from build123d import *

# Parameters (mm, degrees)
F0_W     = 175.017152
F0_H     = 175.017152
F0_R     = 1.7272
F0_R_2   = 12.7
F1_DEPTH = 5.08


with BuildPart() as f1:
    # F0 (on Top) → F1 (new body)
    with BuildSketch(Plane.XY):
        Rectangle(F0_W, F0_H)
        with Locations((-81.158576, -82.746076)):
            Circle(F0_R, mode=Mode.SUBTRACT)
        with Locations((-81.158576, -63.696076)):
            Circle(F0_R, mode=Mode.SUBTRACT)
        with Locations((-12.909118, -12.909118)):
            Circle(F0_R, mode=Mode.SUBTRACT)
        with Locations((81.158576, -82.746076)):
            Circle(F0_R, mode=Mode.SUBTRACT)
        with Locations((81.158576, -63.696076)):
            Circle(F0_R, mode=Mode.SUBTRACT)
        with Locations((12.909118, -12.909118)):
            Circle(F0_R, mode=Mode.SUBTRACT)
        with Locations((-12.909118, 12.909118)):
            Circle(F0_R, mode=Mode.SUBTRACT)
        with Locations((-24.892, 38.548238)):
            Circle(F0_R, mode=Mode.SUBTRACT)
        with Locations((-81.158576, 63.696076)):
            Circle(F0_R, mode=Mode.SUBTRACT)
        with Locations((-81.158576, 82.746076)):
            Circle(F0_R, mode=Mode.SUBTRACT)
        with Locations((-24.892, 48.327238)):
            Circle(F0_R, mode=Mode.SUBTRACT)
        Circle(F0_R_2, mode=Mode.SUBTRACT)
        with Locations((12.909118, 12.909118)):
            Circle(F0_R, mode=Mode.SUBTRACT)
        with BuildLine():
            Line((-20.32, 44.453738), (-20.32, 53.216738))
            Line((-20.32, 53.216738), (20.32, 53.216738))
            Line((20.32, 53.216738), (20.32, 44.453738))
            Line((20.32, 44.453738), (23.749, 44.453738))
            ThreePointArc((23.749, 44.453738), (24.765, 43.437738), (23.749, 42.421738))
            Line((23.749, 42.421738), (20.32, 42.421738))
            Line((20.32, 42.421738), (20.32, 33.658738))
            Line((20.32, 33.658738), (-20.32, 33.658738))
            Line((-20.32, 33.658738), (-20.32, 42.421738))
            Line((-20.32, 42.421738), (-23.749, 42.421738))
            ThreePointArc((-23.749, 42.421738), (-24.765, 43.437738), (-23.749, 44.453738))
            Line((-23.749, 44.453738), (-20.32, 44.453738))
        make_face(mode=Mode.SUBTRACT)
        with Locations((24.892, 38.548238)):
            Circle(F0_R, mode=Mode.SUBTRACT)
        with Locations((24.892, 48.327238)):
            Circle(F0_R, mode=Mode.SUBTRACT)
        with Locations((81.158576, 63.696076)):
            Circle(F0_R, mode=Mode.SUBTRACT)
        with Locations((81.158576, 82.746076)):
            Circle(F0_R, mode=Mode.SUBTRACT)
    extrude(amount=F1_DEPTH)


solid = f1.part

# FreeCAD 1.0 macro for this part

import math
import FreeCAD as App
import Part
import Sketcher
from FreeCAD import Vector
Q = App.Units.Quantity


def add_polygon(sketch, points):
    """Adds a closed chain of lines whose ends are joined by coincident constraints."""
    first, n = sketch.GeometryCount, len(points)
    for a, b in zip(points, points[1:] + points[:1]):
        sketch.addGeometry(Part.LineSegment(App.Vector(*a, 0), App.Vector(*b, 0)), False)
    for i in range(n):
        sketch.addConstraint(Sketcher.Constraint("Coincident", first + i, 2, first + (i + 1) % n, 1))

doc = App.newDocument("Part")
params = doc.addObject("Spreadsheet::Sheet", "Params")
for row, (alias, value) in enumerate([
    ("sketch1_diameter", "1 in"),
    ("sketch1_radius", "0.04 in"),
    ("sketch1_diameter2", "0.136 in"),
    ("sketch1_width", "1.6 in"),
    ("sketch1_width2", "0.135 in"),
    ("pad1_length", "0.2 in"),
], start=1):
    params.set(f"A{row}", alias)
    params.set(f"B{row}", "=" + value)
    params.setAlias(f"B{row}", alias)

body = doc.addObject("PartDesign::Body", "Body")

# Sketch on XY plane
sketch1 = body.newObject("Sketcher::SketchObject", "Sketch")
sketch1.AttachmentSupport = (doc.getObject("XY_Plane"), [""])
sketch1.MapMode = "FlatFace"
add_polygon(sketch1, [(-87.5, 87.5), (-87.5, -87.5), (87.5, -87.5), (87.5, 87.5)])  # lines 0-3
sketch1.addGeometry(Part.Circle(Vector(-81.2, -82.7, 0), Vector(0, 0, 1), 1.7), False)  # 4
sketch1.addGeometry(Part.Circle(Vector(-81.2, -63.7, 0), Vector(0, 0, 1), 1.7), False)  # 5
sketch1.addGeometry(Part.Circle(Vector(-12.9, -12.9, 0), Vector(0, 0, 1), 1.7), False)  # 6
sketch1.addGeometry(Part.Circle(Vector(81.2, -82.7, 0), Vector(0, 0, 1), 1.7), False)  # 7
sketch1.addGeometry(Part.Circle(Vector(81.2, -63.7, 0), Vector(0, 0, 1), 1.7), False)  # 8
sketch1.addGeometry(Part.Circle(Vector(12.9, -12.9, 0), Vector(0, 0, 1), 1.7), False)  # 9
sketch1.addGeometry(Part.Circle(Vector(0, 0, 0), Vector(0, 0, 1), 12.7), False)  # 10
sketch1.addGeometry(Part.Circle(Vector(-12.9, 12.9, 0), Vector(0, 0, 1), 1.7), False)  # 11
sketch1.addGeometry(Part.Circle(Vector(-24.9, 38.5, 0), Vector(0, 0, 1), 1.7), False)  # 12
sketch1.addGeometry(Part.Circle(Vector(-81.2, 63.7, 0), Vector(0, 0, 1), 1.7), False)  # 13
sketch1.addGeometry(Part.Circle(Vector(-81.2, 82.7, 0), Vector(0, 0, 1), 1.7), False)  # 14
sketch1.addGeometry(Part.Circle(Vector(-24.9, 48.3, 0), Vector(0, 0, 1), 1.7), False)  # 15
sketch1.addGeometry(Part.Circle(Vector(12.9, 12.9, 0), Vector(0, 0, 1), 1.7), False)  # 16
sketch1.addGeometry(Part.Circle(Vector(24.9, 38.5, 0), Vector(0, 0, 1), 1.7), False)  # 17
sketch1.addGeometry(Part.LineSegment(Vector(-23.7, 44.5, 0), Vector(-20.3, 44.5, 0)), False)  # 18
sketch1.addGeometry(Part.LineSegment(Vector(-20.3, 44.5, 0), Vector(-20.3, 53.2, 0)), False)  # 19
sketch1.addGeometry(Part.LineSegment(Vector(-20.3, 53.2, 0), Vector(20.3, 53.2, 0)), False)  # 20
sketch1.addGeometry(Part.LineSegment(Vector(20.3, 53.2, 0), Vector(20.3, 44.5, 0)), False)  # 21
sketch1.addGeometry(Part.LineSegment(Vector(20.3, 44.5, 0), Vector(23.7, 44.5, 0)), False)  # 22
sketch1.addGeometry(Part.ArcOfCircle(Part.Circle(Vector(23.7, 43.4, 0), Vector(0, 0, 1), 1), math.radians(-90), math.radians(90)), False)  # 23
sketch1.addGeometry(Part.LineSegment(Vector(23.7, 42.4, 0), Vector(20.3, 42.4, 0)), False)  # 24
sketch1.addGeometry(Part.LineSegment(Vector(20.3, 42.4, 0), Vector(20.3, 33.7, 0)), False)  # 25
sketch1.addGeometry(Part.LineSegment(Vector(20.3, 33.7, 0), Vector(-20.3, 33.7, 0)), False)  # 26
sketch1.addGeometry(Part.LineSegment(Vector(-20.3, 33.7, 0), Vector(-20.3, 42.4, 0)), False)  # 27
sketch1.addGeometry(Part.LineSegment(Vector(-20.3, 42.4, 0), Vector(-23.7, 42.4, 0)), False)  # 28
sketch1.addGeometry(Part.ArcOfCircle(Part.Circle(Vector(-23.7, 43.4, 0), Vector(0, 0, 1), 1), math.radians(90), math.radians(270)), False)  # 29
sketch1.addGeometry(Part.Circle(Vector(24.9, 48.3, 0), Vector(0, 0, 1), 1.7), False)  # 30
sketch1.addGeometry(Part.Circle(Vector(81.2, 63.7, 0), Vector(0, 0, 1), 1.7), False)  # 31
sketch1.addGeometry(Part.Circle(Vector(81.2, 82.7, 0), Vector(0, 0, 1), 1.7), False)  # 32
sketch1.addConstraint([
    Sketcher.Constraint("Coincident", 18, 2, 19, 1),
    Sketcher.Constraint("Coincident", 19, 2, 20, 1),
    Sketcher.Constraint("Coincident", 20, 2, 21, 1),
    Sketcher.Constraint("Coincident", 21, 2, 22, 1),
    Sketcher.Constraint("Tangent", 22, 2, 23, 2),
    Sketcher.Constraint("Tangent", 23, 1, 24, 1),
    Sketcher.Constraint("Coincident", 24, 2, 25, 1),
    Sketcher.Constraint("Coincident", 25, 2, 26, 1),
    Sketcher.Constraint("Coincident", 26, 2, 27, 1),
    Sketcher.Constraint("Coincident", 27, 2, 28, 1),
    Sketcher.Constraint("Tangent", 28, 2, 29, 2),
    Sketcher.Constraint("Tangent", 29, 1, 18, 1),
    Sketcher.Constraint("Vertical", 0),
    Sketcher.Constraint("Horizontal", 1),
    Sketcher.Constraint("Vertical", 2),
    Sketcher.Constraint("Horizontal", 3),
    Sketcher.Constraint("Horizontal", 18),
    Sketcher.Constraint("Vertical", 19),
    Sketcher.Constraint("Horizontal", 20),
    Sketcher.Constraint("Vertical", 21),
    Sketcher.Constraint("Horizontal", 22),
    Sketcher.Constraint("Horizontal", 24),
    Sketcher.Constraint("Vertical", 25),
    Sketcher.Constraint("Horizontal", 26),
    Sketcher.Constraint("Vertical", 27),
    Sketcher.Constraint("Horizontal", 28),
    Sketcher.Constraint("Coincident", 10, 3, -1, 1),
    Sketcher.Constraint("Equal", 4, 5),
    Sketcher.Constraint("Equal", 5, 6),
    Sketcher.Constraint("Equal", 6, 7),
    Sketcher.Constraint("Equal", 7, 8),
    Sketcher.Constraint("Equal", 8, 9),
    Sketcher.Constraint("Equal", 9, 11),
    Sketcher.Constraint("Equal", 11, 12),
    Sketcher.Constraint("Equal", 12, 13),
    Sketcher.Constraint("Equal", 13, 14),
    Sketcher.Constraint("Equal", 14, 15),
    Sketcher.Constraint("Equal", 15, 16),
    Sketcher.Constraint("Equal", 16, 17),
    Sketcher.Constraint("Equal", 23, 29),
    Sketcher.Constraint("Equal", 17, 30),
    Sketcher.Constraint("Equal", 30, 31),
    Sketcher.Constraint("Equal", 31, 32),
    Sketcher.Constraint("Symmetric", 9, 3, 11, 3, -1, 1),
    Sketcher.Constraint("Symmetric", 8, 3, 13, 3, -1, 1),
    Sketcher.Constraint("Symmetric", 7, 3, 14, 3, -1, 1),
    Sketcher.Constraint("Symmetric", 6, 3, 16, 3, -1, 1),
    Sketcher.Constraint("Symmetric", 5, 3, 31, 3, -1, 1),
    Sketcher.Constraint("Symmetric", 4, 3, 32, 3, -1, 1),
    Sketcher.Constraint("Symmetric", 0, 2, 2, 2, -1, 1),
    Sketcher.Constraint("Symmetric", 4, 3, 7, 3, -2),
    Sketcher.Constraint("Symmetric", 5, 3, 8, 3, -2),
    Sketcher.Constraint("Symmetric", 6, 3, 9, 3, -2),
    Sketcher.Constraint("Symmetric", 12, 3, 17, 3, -2),
    Sketcher.Constraint("Symmetric", 23, 3, 29, 3, -2),
    Sketcher.Constraint("Symmetric", 15, 3, 30, 3, -2),
    Sketcher.Constraint("Vertical", 4, 3, 5, 3),
    Sketcher.Constraint("Vertical", 12, 3, 15, 3),
    Sketcher.Constraint("Vertical", 21, 2, 24, 2),
    Sketcher.Constraint("Vertical", 19, 2, 26, 2),
    Sketcher.Constraint("Equal", 18, 22),
    Sketcher.Constraint("Equal", 3, 0),
    Sketcher.Constraint("Equal", 21, 25),
    Sketcher.Constraint("Diameter", 10, Q("1 in")),
    Sketcher.Constraint("Radius", 23, Q("0.04 in")),
    Sketcher.Constraint("Diameter", 4, Q("0.136 in")),
    Sketcher.Constraint("DistanceX", 20, 1, 20, 2, Q("1.6 in")),
    Sketcher.Constraint("DistanceX", 18, 1, 18, 2, Q("0.135 in")),
    Sketcher.Constraint("DistanceY", 19, 1, 19, 2, Q("0.345 in")),
    Sketcher.Constraint("DistanceX", 12, 3, -1, 1, Q("0.98 in")),
    Sketcher.Constraint("DistanceY", 4, 3, 5, 3, Q("0.75 in")),
    Sketcher.Constraint("DistanceX", 0, 2, 4, 3, Q("0.25 in")),
    Sketcher.Constraint("DistanceY", 12, 3, 15, 3, Q("0.385 in")),
    Sketcher.Constraint("DistanceY", 0, 2, 4, 3, Q("0.1875 in")),
    Sketcher.Constraint("DistanceY", 17, 3, 23, 3, Q("0.1925 in")),
    Sketcher.Constraint("DistanceX", 1, 1, 1, 2, 175.017152),
    Sketcher.Constraint("DistanceY", -1, 1, 23, 3, 43.437738),
    Sketcher.Constraint("DistanceX", 5, 3, 6, 3, 68.249458),
    Sketcher.Constraint("DistanceY", 4, 3, 6, 3, 69.836958),
])
sketch1.setExpression("Constraints[67]", "Params.sketch1_diameter")
sketch1.setExpression("Constraints[68]", "Params.sketch1_radius")
sketch1.setExpression("Constraints[69]", "Params.sketch1_diameter2")
sketch1.setExpression("Constraints[70]", "Params.sketch1_width")
sketch1.setExpression("Constraints[71]", "Params.sketch1_width2")
pad1 = body.newObject("PartDesign::Pad", "Pad")
pad1.Profile = sketch1
pad1.setExpression("Length", "Params.pad1_length")

doc.recompute()
